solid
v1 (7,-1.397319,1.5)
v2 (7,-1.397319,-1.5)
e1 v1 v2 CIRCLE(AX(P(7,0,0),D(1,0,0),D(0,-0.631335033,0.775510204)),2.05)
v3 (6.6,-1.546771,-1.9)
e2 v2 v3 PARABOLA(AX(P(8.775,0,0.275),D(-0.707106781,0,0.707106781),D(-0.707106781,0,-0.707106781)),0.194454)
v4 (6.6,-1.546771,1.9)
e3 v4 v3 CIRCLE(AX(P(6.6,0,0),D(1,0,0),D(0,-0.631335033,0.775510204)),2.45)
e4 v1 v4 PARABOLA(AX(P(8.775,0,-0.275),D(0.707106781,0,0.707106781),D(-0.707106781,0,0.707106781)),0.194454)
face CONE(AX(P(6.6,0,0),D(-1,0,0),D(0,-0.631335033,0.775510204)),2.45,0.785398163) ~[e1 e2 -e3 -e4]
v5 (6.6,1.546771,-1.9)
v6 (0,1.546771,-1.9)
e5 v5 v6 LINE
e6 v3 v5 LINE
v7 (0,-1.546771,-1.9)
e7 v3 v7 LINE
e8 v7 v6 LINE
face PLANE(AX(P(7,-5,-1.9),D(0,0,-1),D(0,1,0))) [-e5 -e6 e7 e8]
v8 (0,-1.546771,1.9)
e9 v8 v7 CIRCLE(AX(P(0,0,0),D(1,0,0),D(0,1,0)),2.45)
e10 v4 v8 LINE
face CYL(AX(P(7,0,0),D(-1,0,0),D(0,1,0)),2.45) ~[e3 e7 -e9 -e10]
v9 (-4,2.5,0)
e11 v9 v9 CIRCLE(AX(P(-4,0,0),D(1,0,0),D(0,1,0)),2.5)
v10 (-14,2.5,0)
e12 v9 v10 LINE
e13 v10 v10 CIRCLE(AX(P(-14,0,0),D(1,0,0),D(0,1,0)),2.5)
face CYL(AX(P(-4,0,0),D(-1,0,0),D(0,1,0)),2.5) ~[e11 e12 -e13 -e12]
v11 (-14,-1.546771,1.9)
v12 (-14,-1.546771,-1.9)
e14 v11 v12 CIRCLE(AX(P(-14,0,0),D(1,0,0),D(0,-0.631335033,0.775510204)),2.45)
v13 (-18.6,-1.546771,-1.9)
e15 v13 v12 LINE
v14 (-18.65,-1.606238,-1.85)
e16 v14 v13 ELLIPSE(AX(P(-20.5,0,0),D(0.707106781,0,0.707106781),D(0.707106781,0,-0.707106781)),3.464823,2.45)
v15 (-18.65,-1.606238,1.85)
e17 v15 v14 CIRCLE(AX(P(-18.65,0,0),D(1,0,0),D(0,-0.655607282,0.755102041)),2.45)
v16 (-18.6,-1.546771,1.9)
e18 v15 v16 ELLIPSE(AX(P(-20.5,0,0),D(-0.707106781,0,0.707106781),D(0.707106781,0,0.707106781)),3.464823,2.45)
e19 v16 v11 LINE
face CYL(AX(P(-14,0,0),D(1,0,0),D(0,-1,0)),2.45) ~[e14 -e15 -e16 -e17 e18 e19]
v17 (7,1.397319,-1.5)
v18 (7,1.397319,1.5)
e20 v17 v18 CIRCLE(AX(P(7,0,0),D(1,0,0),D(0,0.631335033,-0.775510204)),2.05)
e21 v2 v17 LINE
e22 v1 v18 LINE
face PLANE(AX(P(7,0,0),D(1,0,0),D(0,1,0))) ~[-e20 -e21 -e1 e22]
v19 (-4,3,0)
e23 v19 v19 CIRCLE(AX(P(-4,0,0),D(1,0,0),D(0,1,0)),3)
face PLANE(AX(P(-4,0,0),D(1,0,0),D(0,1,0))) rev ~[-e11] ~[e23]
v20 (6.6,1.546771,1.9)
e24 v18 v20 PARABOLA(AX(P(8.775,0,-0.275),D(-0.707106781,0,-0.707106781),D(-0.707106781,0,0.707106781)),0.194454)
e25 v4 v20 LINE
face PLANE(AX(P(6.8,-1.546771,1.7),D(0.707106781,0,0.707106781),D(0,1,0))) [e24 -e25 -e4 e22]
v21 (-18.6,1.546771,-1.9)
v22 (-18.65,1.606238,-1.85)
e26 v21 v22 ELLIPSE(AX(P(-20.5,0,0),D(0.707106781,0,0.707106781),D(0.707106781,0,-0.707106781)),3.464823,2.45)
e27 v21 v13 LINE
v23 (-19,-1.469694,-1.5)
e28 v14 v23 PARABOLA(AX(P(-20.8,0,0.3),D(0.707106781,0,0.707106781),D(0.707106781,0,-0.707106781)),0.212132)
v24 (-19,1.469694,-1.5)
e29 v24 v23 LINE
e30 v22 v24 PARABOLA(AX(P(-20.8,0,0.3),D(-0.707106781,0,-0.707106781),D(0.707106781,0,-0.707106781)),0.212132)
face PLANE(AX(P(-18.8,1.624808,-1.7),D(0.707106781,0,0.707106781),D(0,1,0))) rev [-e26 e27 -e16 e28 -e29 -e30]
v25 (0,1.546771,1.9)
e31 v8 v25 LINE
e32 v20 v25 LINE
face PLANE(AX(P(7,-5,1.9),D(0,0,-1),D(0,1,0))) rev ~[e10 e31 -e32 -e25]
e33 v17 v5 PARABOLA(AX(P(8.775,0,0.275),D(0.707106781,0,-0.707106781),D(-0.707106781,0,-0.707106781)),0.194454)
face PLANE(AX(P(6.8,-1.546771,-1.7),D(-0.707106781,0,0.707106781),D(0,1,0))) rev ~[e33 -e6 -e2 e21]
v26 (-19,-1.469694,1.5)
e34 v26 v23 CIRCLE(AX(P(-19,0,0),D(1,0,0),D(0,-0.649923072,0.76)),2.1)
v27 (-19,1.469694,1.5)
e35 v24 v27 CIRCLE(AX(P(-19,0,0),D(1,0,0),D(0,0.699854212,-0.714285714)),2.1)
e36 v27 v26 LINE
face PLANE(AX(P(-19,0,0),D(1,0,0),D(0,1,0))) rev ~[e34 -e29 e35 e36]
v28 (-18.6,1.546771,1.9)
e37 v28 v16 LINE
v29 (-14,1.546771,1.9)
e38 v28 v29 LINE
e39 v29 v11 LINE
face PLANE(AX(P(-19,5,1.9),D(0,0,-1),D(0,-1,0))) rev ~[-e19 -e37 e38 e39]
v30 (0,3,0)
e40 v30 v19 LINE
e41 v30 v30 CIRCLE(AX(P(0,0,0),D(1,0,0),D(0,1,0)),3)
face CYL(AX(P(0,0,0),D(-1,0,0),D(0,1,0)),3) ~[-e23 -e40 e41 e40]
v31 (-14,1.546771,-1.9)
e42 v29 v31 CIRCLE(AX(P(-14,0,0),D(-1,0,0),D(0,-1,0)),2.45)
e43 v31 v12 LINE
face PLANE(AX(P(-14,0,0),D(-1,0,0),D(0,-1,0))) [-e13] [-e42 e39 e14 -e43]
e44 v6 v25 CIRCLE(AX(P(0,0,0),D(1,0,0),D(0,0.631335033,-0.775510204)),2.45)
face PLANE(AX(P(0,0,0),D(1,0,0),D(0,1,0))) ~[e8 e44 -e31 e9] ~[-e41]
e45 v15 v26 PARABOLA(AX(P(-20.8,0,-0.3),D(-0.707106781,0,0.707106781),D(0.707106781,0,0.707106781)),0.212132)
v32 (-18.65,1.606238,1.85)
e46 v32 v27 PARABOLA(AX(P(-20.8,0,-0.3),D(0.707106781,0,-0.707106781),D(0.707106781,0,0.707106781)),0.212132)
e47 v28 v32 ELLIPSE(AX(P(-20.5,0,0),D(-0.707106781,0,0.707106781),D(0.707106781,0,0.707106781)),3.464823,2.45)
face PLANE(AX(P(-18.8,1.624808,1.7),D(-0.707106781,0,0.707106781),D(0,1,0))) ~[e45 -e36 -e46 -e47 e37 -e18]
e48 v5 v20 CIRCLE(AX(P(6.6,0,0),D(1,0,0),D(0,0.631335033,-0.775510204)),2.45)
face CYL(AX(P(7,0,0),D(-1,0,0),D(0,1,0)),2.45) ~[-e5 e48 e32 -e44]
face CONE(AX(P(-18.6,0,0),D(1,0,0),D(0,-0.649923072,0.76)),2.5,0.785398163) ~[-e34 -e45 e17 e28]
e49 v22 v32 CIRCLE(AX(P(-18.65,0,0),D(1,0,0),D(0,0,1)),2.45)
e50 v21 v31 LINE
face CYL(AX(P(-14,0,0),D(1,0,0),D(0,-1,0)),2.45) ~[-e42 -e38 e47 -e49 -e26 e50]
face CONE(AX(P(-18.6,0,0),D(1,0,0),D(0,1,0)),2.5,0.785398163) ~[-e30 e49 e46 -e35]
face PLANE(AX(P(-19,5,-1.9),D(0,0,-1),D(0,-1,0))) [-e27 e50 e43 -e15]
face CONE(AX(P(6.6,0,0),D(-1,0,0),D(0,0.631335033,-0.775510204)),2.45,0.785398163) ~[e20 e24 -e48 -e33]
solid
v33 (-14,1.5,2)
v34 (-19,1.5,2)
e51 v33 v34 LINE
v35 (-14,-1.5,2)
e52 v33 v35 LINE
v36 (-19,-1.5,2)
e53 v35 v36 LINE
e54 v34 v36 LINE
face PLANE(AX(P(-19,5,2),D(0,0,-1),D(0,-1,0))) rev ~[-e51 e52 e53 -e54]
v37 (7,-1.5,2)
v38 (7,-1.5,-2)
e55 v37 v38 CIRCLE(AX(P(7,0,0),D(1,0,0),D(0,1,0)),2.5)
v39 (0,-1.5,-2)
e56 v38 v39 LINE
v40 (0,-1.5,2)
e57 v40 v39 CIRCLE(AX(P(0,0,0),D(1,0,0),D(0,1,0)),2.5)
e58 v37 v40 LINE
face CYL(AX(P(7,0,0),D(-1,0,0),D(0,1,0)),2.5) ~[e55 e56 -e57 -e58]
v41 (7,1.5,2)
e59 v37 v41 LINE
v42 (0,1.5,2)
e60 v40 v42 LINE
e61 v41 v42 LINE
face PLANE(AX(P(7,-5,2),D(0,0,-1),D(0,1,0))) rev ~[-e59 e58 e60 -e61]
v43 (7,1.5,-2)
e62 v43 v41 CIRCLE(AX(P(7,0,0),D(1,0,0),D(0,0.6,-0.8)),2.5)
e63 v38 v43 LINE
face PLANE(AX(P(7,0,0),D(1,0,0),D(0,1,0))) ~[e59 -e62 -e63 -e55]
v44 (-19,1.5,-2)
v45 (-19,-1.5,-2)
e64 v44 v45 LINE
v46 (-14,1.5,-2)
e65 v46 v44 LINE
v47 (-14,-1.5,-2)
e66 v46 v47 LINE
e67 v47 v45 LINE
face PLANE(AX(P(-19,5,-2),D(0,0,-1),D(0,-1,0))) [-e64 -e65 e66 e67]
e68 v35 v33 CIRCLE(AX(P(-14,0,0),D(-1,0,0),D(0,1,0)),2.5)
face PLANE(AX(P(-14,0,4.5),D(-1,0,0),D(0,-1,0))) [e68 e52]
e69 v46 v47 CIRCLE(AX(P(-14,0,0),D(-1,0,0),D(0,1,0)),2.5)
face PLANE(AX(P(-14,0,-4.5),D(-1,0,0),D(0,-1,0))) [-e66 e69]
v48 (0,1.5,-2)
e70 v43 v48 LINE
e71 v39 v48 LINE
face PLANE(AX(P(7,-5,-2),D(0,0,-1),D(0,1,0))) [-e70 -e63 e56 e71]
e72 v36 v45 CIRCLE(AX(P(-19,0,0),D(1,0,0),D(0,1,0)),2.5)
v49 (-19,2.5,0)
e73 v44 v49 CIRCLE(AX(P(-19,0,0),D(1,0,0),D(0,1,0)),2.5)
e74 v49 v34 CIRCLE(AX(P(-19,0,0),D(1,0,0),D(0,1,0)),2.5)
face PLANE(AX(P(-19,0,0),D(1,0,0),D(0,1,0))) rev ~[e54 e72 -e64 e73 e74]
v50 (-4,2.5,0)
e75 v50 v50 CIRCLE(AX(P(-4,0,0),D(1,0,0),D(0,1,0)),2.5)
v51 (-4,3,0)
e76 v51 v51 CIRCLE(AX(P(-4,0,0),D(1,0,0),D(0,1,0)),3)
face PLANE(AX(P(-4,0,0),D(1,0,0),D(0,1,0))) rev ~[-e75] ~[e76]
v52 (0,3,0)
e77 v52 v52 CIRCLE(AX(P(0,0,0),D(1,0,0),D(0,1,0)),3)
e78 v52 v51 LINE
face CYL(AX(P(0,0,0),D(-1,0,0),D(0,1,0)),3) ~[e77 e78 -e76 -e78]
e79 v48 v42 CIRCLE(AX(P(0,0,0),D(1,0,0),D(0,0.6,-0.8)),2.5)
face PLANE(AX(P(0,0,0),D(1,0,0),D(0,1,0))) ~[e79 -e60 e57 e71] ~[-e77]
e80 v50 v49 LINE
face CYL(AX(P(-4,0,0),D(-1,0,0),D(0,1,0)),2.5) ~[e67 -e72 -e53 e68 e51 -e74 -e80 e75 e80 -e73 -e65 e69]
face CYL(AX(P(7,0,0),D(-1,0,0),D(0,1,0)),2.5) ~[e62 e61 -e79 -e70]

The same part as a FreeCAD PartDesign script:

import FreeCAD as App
import Part
import Sketcher
Q = App.Units.Quantity


def edges_at(feature, points):
    """Names of the edges that pass closest to the given points."""
    edges = feature.Shape.Edges
    near = lambda p: min(range(len(edges)), key=lambda i: edges[i].distToShape(Part.Vertex(*p))[0])
    return sorted({f"Edge{near(p) + 1}" for p in points})

doc = App.newDocument("Part")
body = doc.addObject("PartDesign::Body", "Body")

# Sketch on XY plane
sketch1 = doc.addObject("Sketcher::SketchObject", "Sketch")
body.addObject(sketch1)
sketch1.AttachmentSupport = (doc.XY_Plane, [""])
sketch1.MapMode = "FlatFace"
sketch1.addGeometry([
    Part.LineSegment(App.Vector(7, 0, 0), App.Vector(7, 2.5, 0)),  # 0
    Part.LineSegment(App.Vector(7, 2.5, 0), App.Vector(0, 2.5, 0)),  # 1
    Part.LineSegment(App.Vector(0, 2.5, 0), App.Vector(0, 3, 0)),  # 2
    Part.LineSegment(App.Vector(0, 3, 0), App.Vector(-4, 3, 0)),  # 3
    Part.LineSegment(App.Vector(-4, 3, 0), App.Vector(-4, 2.5, 0)),  # 4
    Part.LineSegment(App.Vector(-4, 2.5, 0), App.Vector(-19, 2.5, 0)),  # 5
    Part.LineSegment(App.Vector(-19, 2.5, 0), App.Vector(-19, 0, 0)),  # 6
    Part.LineSegment(App.Vector(-19, 0, 0), App.Vector(7, 0, 0)),  # 7
], False)
sketch1.addConstraint([
    Sketcher.Constraint("Coincident", 0, 2, 1, 1),
    Sketcher.Constraint("Coincident", 1, 2, 2, 1),
    Sketcher.Constraint("Coincident", 2, 2, 3, 1),
    Sketcher.Constraint("Coincident", 3, 2, 4, 1),
    Sketcher.Constraint("Coincident", 4, 2, 5, 1),
    Sketcher.Constraint("Coincident", 5, 2, 6, 1),
    Sketcher.Constraint("Coincident", 6, 2, 7, 1),
    Sketcher.Constraint("Coincident", 7, 2, 0, 1),
    Sketcher.Constraint("Vertical", 0),
    Sketcher.Constraint("Horizontal", 1),
    Sketcher.Constraint("Vertical", 2),
    Sketcher.Constraint("Horizontal", 3),
    Sketcher.Constraint("Vertical", 4),
    Sketcher.Constraint("Horizontal", 5),
    Sketcher.Constraint("Vertical", 6),
    Sketcher.Constraint("Horizontal", 7),
    Sketcher.Constraint("PointOnObject", 1, 2, -2),
    Sketcher.Constraint("PointOnObject", 6, 2, -1),
    Sketcher.Constraint("Horizontal", 1, 2, 4, 2),
    Sketcher.Constraint("DistanceX", 1, 2, 1, 1, Q("7 mm")),
    Sketcher.Constraint("DistanceX", 3, 2, 3, 1, Q("4 mm")),
    Sketcher.Constraint("DistanceX", 5, 2, 5, 1, Q("15 mm")),
    Sketcher.Constraint("DistanceY", 0, 1, 0, 2, Q("2.5 mm")),
    Sketcher.Constraint("DistanceY", 2, 1, 2, 2, Q("0.5 mm")),
])
revolution = doc.addObject("PartDesign::Revolution", "Revolution")
body.addObject(revolution)
revolution.Profile = sketch1
revolution.ReferenceAxis = (sketch1, ["H_Axis"])
revolution.Angle = 360

# Sketch on YZ plane
sketch2 = doc.addObject("Sketcher::SketchObject", "Sketch001")
body.addObject(sketch2)
sketch2.AttachmentSupport = (doc.YZ_Plane, [""])
sketch2.MapMode = "FlatFace"
sketch2.AttachmentOffset = App.Placement(App.Vector(0, 0, -19), App.Rotation())
sketch2.addGeometry([
    Part.LineSegment(App.Vector(5, 7, 0), App.Vector(5, 2, 0)),  # 0
    Part.LineSegment(App.Vector(5, 2, 0), App.Vector(-5, 2, 0)),  # 1
    Part.LineSegment(App.Vector(-5, 2, 0), App.Vector(-5, 7, 0)),  # 2
    Part.LineSegment(App.Vector(-5, 7, 0), App.Vector(5, 7, 0)),  # 3
    Part.LineSegment(App.Vector(5, -2, 0), App.Vector(5, -7, 0)),  # 4
    Part.LineSegment(App.Vector(5, -7, 0), App.Vector(-5, -7, 0)),  # 5
    Part.LineSegment(App.Vector(-5, -7, 0), App.Vector(-5, -2, 0)),  # 6
    Part.LineSegment(App.Vector(-5, -2, 0), App.Vector(5, -2, 0)),  # 7
], False)
sketch2.addConstraint([
    Sketcher.Constraint("Coincident", 0, 2, 1, 1),
    Sketcher.Constraint("Coincident", 1, 2, 2, 1),
    Sketcher.Constraint("Coincident", 2, 2, 3, 1),
    Sketcher.Constraint("Coincident", 3, 2, 0, 1),
    Sketcher.Constraint("Coincident", 4, 2, 5, 1),
    Sketcher.Constraint("Coincident", 5, 2, 6, 1),
    Sketcher.Constraint("Coincident", 6, 2, 7, 1),
    Sketcher.Constraint("Coincident", 7, 2, 4, 1),
    Sketcher.Constraint("Vertical", 0),
    Sketcher.Constraint("Horizontal", 1),
    Sketcher.Constraint("Vertical", 2),
    Sketcher.Constraint("Horizontal", 3),
    Sketcher.Constraint("Vertical", 4),
    Sketcher.Constraint("Horizontal", 5),
    Sketcher.Constraint("Vertical", 6),
    Sketcher.Constraint("Horizontal", 7),
    Sketcher.Constraint("Symmetric", 2, 2, 4, 2, -1, 1),
    Sketcher.Constraint("Symmetric", 0, 2, 6, 2, -1, 1),
    Sketcher.Constraint("Vertical", 3, 2, 4, 2),
    Sketcher.Constraint("DistanceX", 1, 2, 1, 1, Q("10 mm")),
    Sketcher.Constraint("DistanceY", 0, 2, 0, 1, Q("5 mm")),
    Sketcher.Constraint("DistanceY", -1, 1, 0, 2, Q("2 mm")),
])
pocket1 = doc.addObject("PartDesign::Pocket", "Pocket")
body.addObject(pocket1)
pocket1.Profile = sketch2
pocket1.Length = 5
pocket1.Reversed = True

# Sketch on YZ plane
sketch3 = doc.addObject("Sketcher::SketchObject", "Sketch002")
body.addObject(sketch3)
sketch3.AttachmentSupport = (doc.YZ_Plane, [""])
sketch3.MapMode = "FlatFace"
sketch3.AttachmentOffset = App.Placement(App.Vector(0, 0, 7), App.Rotation())
sketch3.addGeometry([
    Part.LineSegment(App.Vector(-5, 7, 0), App.Vector(-5, 2, 0)),  # 0
    Part.LineSegment(App.Vector(-5, 2, 0), App.Vector(5, 2, 0)),  # 1
    Part.LineSegment(App.Vector(5, 2, 0), App.Vector(5, 7, 0)),  # 2
    Part.LineSegment(App.Vector(5, 7, 0), App.Vector(-5, 7, 0)),  # 3
    Part.LineSegment(App.Vector(-5, -2, 0), App.Vector(-5, -7, 0)),  # 4
    Part.LineSegment(App.Vector(-5, -7, 0), App.Vector(5, -7, 0)),  # 5
    Part.LineSegment(App.Vector(5, -7, 0), App.Vector(5, -2, 0)),  # 6
    Part.LineSegment(App.Vector(5, -2, 0), App.Vector(-5, -2, 0)),  # 7
], False)
sketch3.addConstraint([
    Sketcher.Constraint("Coincident", 0, 2, 1, 1),
    Sketcher.Constraint("Coincident", 1, 2, 2, 1),
    Sketcher.Constraint("Coincident", 2, 2, 3, 1),
    Sketcher.Constraint("Coincident", 3, 2, 0, 1),
    Sketcher.Constraint("Coincident", 4, 2, 5, 1),
    Sketcher.Constraint("Coincident", 5, 2, 6, 1),
    Sketcher.Constraint("Coincident", 6, 2, 7, 1),
    Sketcher.Constraint("Coincident", 7, 2, 4, 1),
    Sketcher.Constraint("Vertical", 0),
    Sketcher.Constraint("Horizontal", 1),
    Sketcher.Constraint("Vertical", 2),
    Sketcher.Constraint("Horizontal", 3),
    Sketcher.Constraint("Vertical", 4),
    Sketcher.Constraint("Horizontal", 5),
    Sketcher.Constraint("Vertical", 6),
    Sketcher.Constraint("Horizontal", 7),
    Sketcher.Constraint("Symmetric", 2, 2, 4, 2, -1, 1),
    Sketcher.Constraint("Symmetric", 0, 2, 6, 2, -1, 1),
    Sketcher.Constraint("Vertical", 3, 2, 4, 2),
    Sketcher.Constraint("DistanceX", 1, 1, 1, 2, Q("10 mm")),
    Sketcher.Constraint("DistanceY", 0, 2, 0, 1, Q("5 mm")),
    Sketcher.Constraint("DistanceY", -1, 1, 0, 2, Q("2 mm")),
])
pocket2 = doc.addObject("PartDesign::Pocket", "Pocket001")
body.addObject(pocket2)
pocket2.Profile = sketch3
pocket2.Length = 7
body2 = doc.addObject("PartDesign::Body", "Body001")

# Sketch on XY plane
sketch4 = doc.addObject("Sketcher::SketchObject", "Sketch003")
body2.addObject(sketch4)
sketch4.AttachmentSupport = (doc.getObject("XY_Plane001"), [""])
sketch4.MapMode = "FlatFace"
sketch4.addGeometry([
    Part.LineSegment(App.Vector(7, 0, 0), App.Vector(7, 2.45, 0)),  # 0
    Part.LineSegment(App.Vector(7, 2.45, 0), App.Vector(0, 2.45, 0)),  # 1
    Part.LineSegment(App.Vector(0, 2.45, 0), App.Vector(0, 3, 0)),  # 2
    Part.LineSegment(App.Vector(0, 3, 0), App.Vector(-4, 3, 0)),  # 3
    Part.LineSegment(App.Vector(-4, 3, 0), App.Vector(-4, 2.5, 0)),  # 4
    Part.LineSegment(App.Vector(-4, 2.5, 0), App.Vector(-19, 2.5, 0)),  # 5
    Part.LineSegment(App.Vector(-19, 2.5, 0), App.Vector(-19, 0, 0)),  # 6
    Part.LineSegment(App.Vector(-19, 0, 0), App.Vector(7, 0, 0)),  # 7
], False)
sketch4.addConstraint([
    Sketcher.Constraint("Coincident", 0, 2, 1, 1),
    Sketcher.Constraint("Coincident", 1, 2, 2, 1),
    Sketcher.Constraint("Coincident", 2, 2, 3, 1),
    Sketcher.Constraint("Coincident", 3, 2, 4, 1),
    Sketcher.Constraint("Coincident", 4, 2, 5, 1),
    Sketcher.Constraint("Coincident", 5, 2, 6, 1),
    Sketcher.Constraint("Coincident", 6, 2, 7, 1),
    Sketcher.Constraint("Coincident", 7, 2, 0, 1),
    Sketcher.Constraint("Vertical", 0),
    Sketcher.Constraint("Horizontal", 1),
    Sketcher.Constraint("Vertical", 2),
    Sketcher.Constraint("Horizontal", 3),
    Sketcher.Constraint("Vertical", 4),
    Sketcher.Constraint("Horizontal", 5),
    Sketcher.Constraint("Vertical", 6),
    Sketcher.Constraint("Horizontal", 7),
    Sketcher.Constraint("PointOnObject", 1, 2, -2),
    Sketcher.Constraint("PointOnObject", 6, 2, -1),
    Sketcher.Constraint("DistanceX", 1, 2, 1, 1, Q("7 mm")),
    Sketcher.Constraint("DistanceX", 3, 2, 3, 1, Q("4 mm")),
    Sketcher.Constraint("DistanceX", 5, 2, 5, 1, Q("15 mm")),
    Sketcher.Constraint("DistanceY", 4, 2, 4, 1, Q("0.5 mm")),
    Sketcher.Constraint("DistanceY", 6, 2, 6, 1, Q("2.5 mm")),
    Sketcher.Constraint("DistanceY", 0, 1, 0, 2, Q("2.45 mm")),
])
revolution2 = doc.addObject("PartDesign::Revolution", "Revolution001")
body2.addObject(revolution2)
revolution2.Profile = sketch4
revolution2.ReferenceAxis = (sketch4, ["H_Axis"])
revolution2.Angle = 360

# Sketch on YZ plane
sketch5 = doc.addObject("Sketcher::SketchObject", "Sketch004")
body2.addObject(sketch5)
sketch5.AttachmentSupport = (doc.getObject("YZ_Plane001"), [""])
sketch5.MapMode = "FlatFace"
sketch5.AttachmentOffset = App.Placement(App.Vector(0, 0, -19), App.Rotation())
sketch5.addGeometry([
    Part.LineSegment(App.Vector(5, 6.9, 0), App.Vector(5, 1.9, 0)),  # 0
    Part.LineSegment(App.Vector(5, 1.9, 0), App.Vector(-5, 1.9, 0)),  # 1
    Part.LineSegment(App.Vector(-5, 1.9, 0), App.Vector(-5, 6.9, 0)),  # 2
    Part.LineSegment(App.Vector(-5, 6.9, 0), App.Vector(5, 6.9, 0)),  # 3
    Part.LineSegment(App.Vector(5, -1.9, 0), App.Vector(5, -6.9, 0)),  # 4
    Part.LineSegment(App.Vector(5, -6.9, 0), App.Vector(-5, -6.9, 0)),  # 5
    Part.LineSegment(App.Vector(-5, -6.9, 0), App.Vector(-5, -1.9, 0)),  # 6
    Part.LineSegment(App.Vector(-5, -1.9, 0), App.Vector(5, -1.9, 0)),  # 7
], False)
sketch5.addConstraint([
    Sketcher.Constraint("Coincident", 0, 2, 1, 1),
    Sketcher.Constraint("Coincident", 1, 2, 2, 1),
    Sketcher.Constraint("Coincident", 2, 2, 3, 1),
    Sketcher.Constraint("Coincident", 3, 2, 0, 1),
    Sketcher.Constraint("Coincident", 4, 2, 5, 1),
    Sketcher.Constraint("Coincident", 5, 2, 6, 1),
    Sketcher.Constraint("Coincident", 6, 2, 7, 1),
    Sketcher.Constraint("Coincident", 7, 2, 4, 1),
    Sketcher.Constraint("Vertical", 0),
    Sketcher.Constraint("Horizontal", 1),
    Sketcher.Constraint("Vertical", 2),
    Sketcher.Constraint("Horizontal", 3),
    Sketcher.Constraint("Vertical", 4),
    Sketcher.Constraint("Horizontal", 5),
    Sketcher.Constraint("Vertical", 6),
    Sketcher.Constraint("Horizontal", 7),
    Sketcher.Constraint("Symmetric", 2, 2, 4, 2, -1, 1),
    Sketcher.Constraint("Symmetric", 0, 2, 6, 2, -1, 1),
    Sketcher.Constraint("Vertical", 3, 2, 4, 2),
    Sketcher.Constraint("DistanceX", 1, 2, 1, 1, Q("10 mm")),
    Sketcher.Constraint("DistanceY", 0, 2, 0, 1, Q("5 mm")),
    Sketcher.Constraint("DistanceY", -1, 1, 0, 2, Q("1.9 mm")),
])
pocket3 = doc.addObject("PartDesign::Pocket", "Pocket002")
body2.addObject(pocket3)
pocket3.Profile = sketch5
pocket3.Length = 5
pocket3.Reversed = True

# Sketch on YZ plane
sketch6 = doc.addObject("Sketcher::SketchObject", "Sketch005")
body2.addObject(sketch6)
sketch6.AttachmentSupport = (doc.getObject("YZ_Plane001"), [""])
sketch6.MapMode = "FlatFace"
sketch6.AttachmentOffset = App.Placement(App.Vector(0, 0, 7), App.Rotation())
sketch6.addGeometry([
    Part.LineSegment(App.Vector(-5, 6.9, 0), App.Vector(-5, 1.9, 0)),  # 0
    Part.LineSegment(App.Vector(-5, 1.9, 0), App.Vector(5, 1.9, 0)),  # 1
    Part.LineSegment(App.Vector(5, 1.9, 0), App.Vector(5, 6.9, 0)),  # 2
    Part.LineSegment(App.Vector(5, 6.9, 0), App.Vector(-5, 6.9, 0)),  # 3
    Part.LineSegment(App.Vector(-5, -1.9, 0), App.Vector(-5, -6.9, 0)),  # 4
    Part.LineSegment(App.Vector(-5, -6.9, 0), App.Vector(5, -6.9, 0)),  # 5
    Part.LineSegment(App.Vector(5, -6.9, 0), App.Vector(5, -1.9, 0)),  # 6
    Part.LineSegment(App.Vector(5, -1.9, 0), App.Vector(-5, -1.9, 0)),  # 7
], False)
sketch6.addConstraint([
    Sketcher.Constraint("Coincident", 0, 2, 1, 1),
    Sketcher.Constraint("Coincident", 1, 2, 2, 1),
    Sketcher.Constraint("Coincident", 2, 2, 3, 1),
    Sketcher.Constraint("Coincident", 3, 2, 0, 1),
    Sketcher.Constraint("Coincident", 4, 2, 5, 1),
    Sketcher.Constraint("Coincident", 5, 2, 6, 1),
    Sketcher.Constraint("Coincident", 6, 2, 7, 1),
    Sketcher.Constraint("Coincident", 7, 2, 4, 1),
    Sketcher.Constraint("Vertical", 0),
    Sketcher.Constraint("Horizontal", 1),
    Sketcher.Constraint("Vertical", 2),
    Sketcher.Constraint("Horizontal", 3),
    Sketcher.Constraint("Vertical", 4),
    Sketcher.Constraint("Horizontal", 5),
    Sketcher.Constraint("Vertical", 6),
    Sketcher.Constraint("Horizontal", 7),
    Sketcher.Constraint("Symmetric", 2, 2, 4, 2, -1, 1),
    Sketcher.Constraint("Symmetric", 0, 2, 6, 2, -1, 1),
    Sketcher.Constraint("Vertical", 3, 2, 4, 2),
    Sketcher.Constraint("DistanceX", 1, 1, 1, 2, Q("10 mm")),
    Sketcher.Constraint("DistanceY", 0, 2, 0, 1, Q("5 mm")),
    Sketcher.Constraint("DistanceY", -1, 1, 0, 2, Q("1.9 mm")),
])
pocket4 = doc.addObject("PartDesign::Pocket", "Pocket003")
body2.addObject(pocket4)
pocket4.Profile = sketch6
pocket4.Length = 7
doc.recompute()

chamfer = doc.addObject("PartDesign::Chamfer", "Chamfer")
body2.addObject(chamfer)
chamfer.Base = (pocket4, edges_at(pocket4, [
    (7, -2.45, 0),
    (7, 2.45, 0),
    (7, 2.45, 0),
    (7, 0, 1.9),
    (7, 0, -1.9),
    (-19, 0, -1.9),
    (-19, 2.271, -1.046),
    (-19, 2.271, 1.046),
    (-19, -2.5, 0),
    (-19, 0, 1.9),
]))
chamfer.Size = 0.4

# Sketch on YZ plane
sketch7 = doc.addObject("Sketcher::SketchObject", "Sketch006")
body2.addObject(sketch7)
sketch7.AttachmentSupport = (doc.getObject("YZ_Plane001"), [""])
sketch7.MapMode = "FlatFace"
sketch7.AttachmentOffset = App.Placement(App.Vector(0, 0, -14), App.Rotation())
sketch7.addGeometry([
    Part.Circle(App.Vector(0, 0, 0), App.Vector(0, 0, 1), 3),
    Part.Circle(App.Vector(0, 0, 0), App.Vector(0, 0, 1), 2.45),
], False)
sketch7.addConstraint([
    Sketcher.Constraint("Coincident", 0, 3, -1, 1),
    Sketcher.Constraint("Coincident", 1, 3, -1, 1),
    Sketcher.Constraint("Diameter", 0, Q("6 mm")),
    Sketcher.Constraint("Diameter", 1, Q("4.9 mm")),
])
pocket5 = doc.addObject("PartDesign::Pocket", "Pocket004")
body2.addObject(pocket5)
pocket5.Profile = sketch7
pocket5.Type = "ThroughAll"

doc.recompute()
